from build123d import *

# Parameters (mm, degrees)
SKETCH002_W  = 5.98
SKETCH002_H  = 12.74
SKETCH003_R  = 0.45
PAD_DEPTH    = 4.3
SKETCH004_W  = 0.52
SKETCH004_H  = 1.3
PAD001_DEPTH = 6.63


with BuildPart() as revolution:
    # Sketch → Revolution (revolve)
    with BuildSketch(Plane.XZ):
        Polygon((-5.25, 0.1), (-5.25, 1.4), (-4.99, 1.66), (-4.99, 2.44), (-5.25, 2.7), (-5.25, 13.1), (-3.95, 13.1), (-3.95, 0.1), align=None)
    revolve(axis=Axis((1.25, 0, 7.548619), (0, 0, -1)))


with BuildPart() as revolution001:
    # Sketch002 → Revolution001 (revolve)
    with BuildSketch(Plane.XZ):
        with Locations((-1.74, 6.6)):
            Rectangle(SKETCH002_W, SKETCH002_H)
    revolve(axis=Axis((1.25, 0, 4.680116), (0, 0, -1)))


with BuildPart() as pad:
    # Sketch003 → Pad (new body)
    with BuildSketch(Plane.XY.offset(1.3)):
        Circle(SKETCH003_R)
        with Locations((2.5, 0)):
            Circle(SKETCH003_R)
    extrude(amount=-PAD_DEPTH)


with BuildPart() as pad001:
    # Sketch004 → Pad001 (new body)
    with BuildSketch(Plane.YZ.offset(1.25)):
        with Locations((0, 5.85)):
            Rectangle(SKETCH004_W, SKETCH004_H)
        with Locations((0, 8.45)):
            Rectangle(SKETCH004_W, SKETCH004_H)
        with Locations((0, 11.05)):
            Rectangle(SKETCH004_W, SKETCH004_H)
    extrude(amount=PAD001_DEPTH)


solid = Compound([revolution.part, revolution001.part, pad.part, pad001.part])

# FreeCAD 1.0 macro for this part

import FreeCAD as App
import Part
import Sketcher
Q = App.Units.Quantity


def add_polygon(sketch, points):
    """Adds a closed chain of lines whose ends are joined by coincident constraints."""
    first, n = sketch.GeometryCount, len(points)
    for a, b in zip(points, points[1:] + points[:1]):
        sketch.addGeometry(Part.LineSegment(App.Vector(*a, 0), App.Vector(*b, 0)), False)
    for i in range(n):
        sketch.addConstraint(Sketcher.Constraint("Coincident", first + i, 2, first + (i + 1) % n, 1))

doc = App.newDocument("Part")
body = doc.addObject("PartDesign::Body", "Body")

sketch1 = doc.addObject("Sketcher::SketchObject", "Sketch")
body.addObject(sketch1)
sketch1.AttachmentSupport = (doc.XZ_Plane, [""])
sketch1.MapMode = "FlatFace"
add_polygon(sketch1, [(-5.25, 1.4), (-5.25, 0.1), (-3.95, 0.1), (-3.95, 13.1), (-5.25, 13.1), (-5.25, 2.7), (-4.99, 2.44), (-4.99, 1.66)])
sketch1.addGeometry(Part.LineSegment(App.Vector(1.25, 13.1, 0), App.Vector(1.25, 0.1, 0)), True)
sketch1.addConstraint(Sketcher.Constraint("Vertical", 0))
sketch1.addConstraint(Sketcher.Constraint("Horizontal", 1))
sketch1.addConstraint(Sketcher.Constraint("Vertical", 2))
sketch1.addConstraint(Sketcher.Constraint("Horizontal", 3))
sketch1.addConstraint(Sketcher.Constraint("Vertical", 4))
sketch1.addConstraint(Sketcher.Constraint("Vertical", 6))
sketch1.addConstraint(Sketcher.Constraint("Vertical", 8))
sketch1.addConstraint(Sketcher.Constraint("Perpendicular", 5, 7))
sketch1.addConstraint(Sketcher.Constraint("Horizontal", 3, 2, 8, 1))
sketch1.addConstraint(Sketcher.Constraint("Horizontal", 1, 2, 8, 2))
sketch1.addConstraint(Sketcher.Constraint("Vertical", 0, 2, 3, 2))
sketch1.addConstraint(Sketcher.Constraint("Equal", 3, 0))
sketch1.addConstraint(Sketcher.Constraint("Equal", 5, 7))
sketch1.addConstraint(Sketcher.Constraint("DistanceY", 2, 1, 2, 2, Q("13 mm")))
sketch1.addConstraint(Sketcher.Constraint("DistanceX", 1, 1, 1, 2, Q("1.3 mm")))
sketch1.addConstraint(Sketcher.Constraint("DistanceY", 4, 2, 4, 1, Q("10.4 mm")))
sketch1.addConstraint(Sketcher.Constraint("DistanceY", 6, 2, 6, 1, Q("0.78 mm")))
sketch1.addConstraint(Sketcher.Constraint("DistanceY", -1, 1, 0, 2, Q("0.1 mm")))
sketch1.addConstraint(Sketcher.Constraint("DistanceX", 2, 2, 8, 1, Q("5.2 mm")))
sketch1.addConstraint(Sketcher.Constraint("DistanceX", 0, 2, -1, 1, Q("5.25 mm")))
revolution = doc.addObject("PartDesign::Revolution", "Revolution")
body.addObject(revolution)
revolution.Profile = sketch1
revolution.ReferenceAxis = (sketch1, ["Axis0"])
revolution.Angle = 360
body2 = doc.addObject("PartDesign::Body", "Body001")

sketch2 = doc.addObject("Sketcher::SketchObject", "Sketch001")
body2.addObject(sketch2)
sketch2.AttachmentSupport = (doc.getObject("XZ_Plane001"), [""])
sketch2.MapMode = "FlatFace"
add_polygon(sketch2, [(-5, 13), (-5, 0), (1, 0), (1, 13)])
sketch2.addGeometry(Part.LineSegment(App.Vector(1, 13, 0), App.Vector(1, 0, 0)), True)
sketch2.addConstraint(Sketcher.Constraint("Vertical", 0))
sketch2.addConstraint(Sketcher.Constraint("Horizontal", 1))
sketch2.addConstraint(Sketcher.Constraint("Vertical", 2))
sketch2.addConstraint(Sketcher.Constraint("Horizontal", 3))
sketch2.addConstraint(Sketcher.Constraint("Vertical", 4))
sketch2.addConstraint(Sketcher.Constraint("Coincident", 4, 1, 2, 2))
sketch2.addConstraint(Sketcher.Constraint("Horizontal", 0, 2, 4, 2))
sketch2.addConstraint(Sketcher.Constraint("DistanceX", 1, 1, 1, 2, Q("5.98 mm")))
sketch2.addConstraint(Sketcher.Constraint("DistanceY", 0, 2, 0, 1, Q("12.74 mm")))
sketch2.addConstraint(Sketcher.Constraint("DistanceX", 0, 2, -1, 1, Q("4.73 mm")))
sketch2.addConstraint(Sketcher.Constraint("DistanceY", -1, 1, 0, 2, Q("0.23 mm")))
revolution2 = doc.addObject("PartDesign::Revolution", "Revolution001")
body2.addObject(revolution2)
revolution2.Profile = sketch2
revolution2.ReferenceAxis = (sketch2, ["Axis0"])
revolution2.Angle = 360
body3 = doc.addObject("PartDesign::Body", "Body002")
body3.AllowCompound = True

sketch3 = doc.addObject("Sketcher::SketchObject", "Sketch002")
body3.addObject(sketch3)
sketch3.AttachmentSupport = (doc.getObject("XY_Plane002"), [""])
sketch3.MapMode = "FlatFace"
sketch3.AttachmentOffset = App.Placement(App.Vector(0, 0, 1.3), App.Rotation())
sketch3.addGeometry(Part.Circle(App.Vector(0, 0, 0), App.Vector(0, 0, 1), 0.45), False)
sketch3.addGeometry(Part.Circle(App.Vector(2.5, 0, 0), App.Vector(0, 0, 1), 0.45), False)
sketch3.addConstraint(Sketcher.Constraint("Coincident", 0, 3, -1, 1))
sketch3.addConstraint(Sketcher.Constraint("Equal", 0, 1))
sketch3.addConstraint(Sketcher.Constraint("PointOnObject", 1, 3, -1))
sketch3.addConstraint(Sketcher.Constraint("Diameter", 0, Q("0.9 mm")))
sketch3.addConstraint(Sketcher.Constraint("DistanceX", -1, 1, 1, 3, Q("2.5 mm")))
pad1 = doc.addObject("PartDesign::Pad", "Pad")
body3.addObject(pad1)
pad1.Profile = sketch3
pad1.Length = 4.3
pad1.Reversed = True
body4 = doc.addObject("PartDesign::Body", "Body003")
body4.AllowCompound = True

sketch4 = doc.addObject("Sketcher::SketchObject", "Sketch003")
body4.addObject(sketch4)
sketch4.AttachmentSupport = (doc.getObject("YZ_Plane003"), [""])
sketch4.MapMode = "FlatFace"
sketch4.AttachmentOffset = App.Placement(App.Vector(0, 0, 1.25), App.Rotation())
add_polygon(sketch4, [(-0.3, 6.5), (-0.3, 5.2), (0.3, 5.2), (0.3, 6.5)])
add_polygon(sketch4, [(-0.3, 9.1), (-0.3, 7.8), (0.3, 7.8), (0.3, 9.1)])
add_polygon(sketch4, [(-0.3, 11.7), (-0.3, 10.4), (0.3, 10.4), (0.3, 11.7)])
sketch4.addConstraint(Sketcher.Constraint("Vertical", 0))
sketch4.addConstraint(Sketcher.Constraint("Horizontal", 1))
sketch4.addConstraint(Sketcher.Constraint("Vertical", 2))
sketch4.addConstraint(Sketcher.Constraint("Horizontal", 3))
sketch4.addConstraint(Sketcher.Constraint("Vertical", 4))
sketch4.addConstraint(Sketcher.Constraint("Horizontal", 5))
sketch4.addConstraint(Sketcher.Constraint("Vertical", 6))
sketch4.addConstraint(Sketcher.Constraint("Horizontal", 7))
sketch4.addConstraint(Sketcher.Constraint("Vertical", 8))
sketch4.addConstraint(Sketcher.Constraint("Horizontal", 9))
sketch4.addConstraint(Sketcher.Constraint("Vertical", 10))
sketch4.addConstraint(Sketcher.Constraint("Horizontal", 11))
sketch4.addConstraint(Sketcher.Constraint("Vertical", 3, 2, 4, 2))
sketch4.addConstraint(Sketcher.Constraint("Vertical", 2, 2, 5, 2))
sketch4.addConstraint(Sketcher.Constraint("Vertical", 7, 2, 8, 2))
sketch4.addConstraint(Sketcher.Constraint("Vertical", 6, 2, 9, 2))
sketch4.addConstraint(Sketcher.Constraint("Equal", 2, 4))
sketch4.addConstraint(Sketcher.Constraint("Equal", 6, 8))
sketch4.addConstraint(Sketcher.Constraint("DistanceY", 0, 2, 0, 1, Q("1.3 mm")))
sketch4.addConstraint(Sketcher.Constraint("DistanceX", 1, 1, 1, 2, Q("0.52 mm")))
sketch4.addConstraint(Sketcher.Constraint("DistanceY", -1, 1, 0, 2, Q("5.2 mm")))
sketch4.addConstraint(Sketcher.Constraint("DistanceY", -1, 1, 4, 2, Q("7.8 mm")))
sketch4.addConstraint(Sketcher.Constraint("DistanceY", -1, 1, 8, 2, Q("10.4 mm")))
sketch4.addConstraint(Sketcher.Constraint("DistanceX", 0, 2, -1, 1, Q("0.26 mm")))
pad2 = doc.addObject("PartDesign::Pad", "Pad001")
body4.addObject(pad2)
pad2.Profile = sketch4
pad2.Length = 6.63

doc.recompute()
